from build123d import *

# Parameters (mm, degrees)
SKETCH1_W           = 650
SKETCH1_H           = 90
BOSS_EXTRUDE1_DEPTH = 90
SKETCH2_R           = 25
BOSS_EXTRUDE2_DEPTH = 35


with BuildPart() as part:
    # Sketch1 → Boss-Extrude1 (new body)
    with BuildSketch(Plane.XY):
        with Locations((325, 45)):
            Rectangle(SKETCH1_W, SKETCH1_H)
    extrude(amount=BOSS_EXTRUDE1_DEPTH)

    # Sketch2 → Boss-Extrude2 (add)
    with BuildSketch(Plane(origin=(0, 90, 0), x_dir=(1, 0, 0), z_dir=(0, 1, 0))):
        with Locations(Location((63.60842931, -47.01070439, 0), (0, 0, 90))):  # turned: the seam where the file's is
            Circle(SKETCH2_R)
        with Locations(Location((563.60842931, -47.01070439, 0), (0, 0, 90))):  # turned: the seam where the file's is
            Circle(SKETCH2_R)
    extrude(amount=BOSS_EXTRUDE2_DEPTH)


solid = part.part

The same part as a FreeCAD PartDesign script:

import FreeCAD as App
import Part
import Sketcher

V = App.Vector
Q = App.Units.Quantity

doc = App.newDocument("Part")
body = doc.addObject("PartDesign::Body", "Body")

# Sketch on XY plane
sketch1 = doc.addObject("Sketcher::SketchObject", "Sketch")
body.addObject(sketch1)
sketch1.AttachmentSupport = (doc.XY_Plane, [""])
sketch1.MapMode = "FlatFace"
sketch1.addGeometry(Part.LineSegment(V(0, 90, 0), V(0, 0, 0)), False)
sketch1.addGeometry(Part.LineSegment(V(0, 0, 0), V(650, 0, 0)), False)
sketch1.addGeometry(Part.LineSegment(V(650, 0, 0), V(650, 90, 0)), False)
sketch1.addGeometry(Part.LineSegment(V(650, 90, 0), V(0, 90, 0)), False)
sketch1.addConstraint(Sketcher.Constraint("Coincident", 0, 2, 1, 1))
sketch1.addConstraint(Sketcher.Constraint("Coincident", 1, 2, 2, 1))
sketch1.addConstraint(Sketcher.Constraint("Coincident", 2, 2, 3, 1))
sketch1.addConstraint(Sketcher.Constraint("Coincident", 3, 2, 0, 1))
sketch1.addConstraint(Sketcher.Constraint("Vertical", 0))
sketch1.addConstraint(Sketcher.Constraint("Horizontal", 1))
sketch1.addConstraint(Sketcher.Constraint("Vertical", 2))
sketch1.addConstraint(Sketcher.Constraint("Horizontal", 3))
sketch1.addConstraint(Sketcher.Constraint("Coincident", 0, 2, -1, 1))
sketch1.addConstraint(Sketcher.Constraint("DistanceX", 1, 1, 1, 2, Q("650 mm")))
sketch1.addConstraint(Sketcher.Constraint("DistanceY", 0, 2, 0, 1, Q("90 mm")))
pad1 = doc.addObject("PartDesign::Pad", "Pad")
body.addObject(pad1)
pad1.Profile = sketch1
pad1.Length = 90

# Sketch on XZ plane
sketch2 = doc.addObject("Sketcher::SketchObject", "Sketch001")
body.addObject(sketch2)
sketch2.AttachmentSupport = (doc.XZ_Plane, [""])
sketch2.MapMode = "FlatFace"
sketch2.AttachmentOffset = App.Placement(V(0, 0, -90), App.Rotation())
sketch2.addGeometry(Part.Circle(V(64, 47, 0), V(0, 0, 1), 25), False)
sketch2.addGeometry(Part.Circle(V(564, 47, 0), V(0, 0, 1), 25), False)
sketch2.addConstraint(Sketcher.Constraint("Equal", 0, 1))
sketch2.addConstraint(Sketcher.Constraint("Horizontal", 0, 3, 1, 3))
sketch2.addConstraint(Sketcher.Constraint("Diameter", 0, Q("50 mm")))
sketch2.addConstraint(Sketcher.Constraint("DistanceX", 0, 3, 1, 3, Q("500 mm")))
sketch2.addConstraint(Sketcher.Constraint("DistanceX", -1, 1, 0, 3, Q("63.608429 mm")))
sketch2.addConstraint(Sketcher.Constraint("DistanceY", -1, 1, 0, 3, Q("47.010704 mm")))
pad2 = doc.addObject("PartDesign::Pad", "Pad001")
body.addObject(pad2)
pad2.Profile = sketch2
pad2.Length = 35
pad2.Reversed = True

doc.recompute()
